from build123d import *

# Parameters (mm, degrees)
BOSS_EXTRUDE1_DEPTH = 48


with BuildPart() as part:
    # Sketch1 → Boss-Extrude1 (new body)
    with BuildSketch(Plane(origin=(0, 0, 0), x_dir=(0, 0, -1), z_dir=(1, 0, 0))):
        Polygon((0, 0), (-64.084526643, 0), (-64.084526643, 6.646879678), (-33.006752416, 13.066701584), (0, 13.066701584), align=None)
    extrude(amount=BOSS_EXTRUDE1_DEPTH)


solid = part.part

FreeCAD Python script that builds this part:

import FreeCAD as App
import Part
import Sketcher
from FreeCAD import Vector
Q = App.Units.Quantity

doc = App.newDocument("Part")
params = doc.addObject("Spreadsheet::Sheet", "Params")
for row, (alias, value) in enumerate([
    ("pad1_length", "48 mm"),
], start=1):
    params.set(f"A{row}", alias)
    params.set(f"B{row}", "=" + value)
    params.setAlias(f"B{row}", alias)

body = doc.addObject("PartDesign::Body", "Body")

sketch1 = body.newObject("Sketcher::SketchObject", "Sketch")
sketch1.AttachmentSupport = (doc.getObject("YZ_Plane"), [""])
sketch1.MapMode = "FlatFace"
sketch1.addGeometry([
    Part.LineSegment(Vector(0, 64.084527, 0), Vector(0, 0, 0)),
    Part.LineSegment(Vector(0, 0, 0), Vector(13.066702, 0, 0)),
    Part.LineSegment(Vector(13.066702, 0, 0), Vector(13.066702, 33.006752, 0)),
    Part.LineSegment(Vector(13.066702, 33.006752, 0), Vector(6.64688, 64.084527, 0)),
    Part.LineSegment(Vector(6.64688, 64.084527, 0), Vector(0, 64.084527, 0)),
], False)
sketch1.addConstraint([
    Sketcher.Constraint("Coincident", 0, 2, 1, 1),
    Sketcher.Constraint("Coincident", 1, 2, 2, 1),
    Sketcher.Constraint("Coincident", 2, 2, 3, 1),
    Sketcher.Constraint("Coincident", 3, 2, 4, 1),
    Sketcher.Constraint("Coincident", 4, 2, 0, 1),
    Sketcher.Constraint("Vertical", 0),
    Sketcher.Constraint("Horizontal", 1),
    Sketcher.Constraint("Vertical", 2),
    Sketcher.Constraint("Horizontal", 4),
    Sketcher.Constraint("Coincident", 0, 2, -1, 1),
    Sketcher.Constraint("DistanceX", 1, 1, 1, 2, Q("13.066702 mm")),
    Sketcher.Constraint("DistanceX", 4, 2, 4, 1, Q("6.64688 mm")),
    Sketcher.Constraint("DistanceY", 0, 2, 0, 1, Q("64.084527 mm")),
    Sketcher.Constraint("DistanceY", 2, 1, 2, 2, Q("33.006752 mm")),
])
pad1 = body.newObject("PartDesign::Pad", "Pad")
pad1.Profile = sketch1
pad1.setExpression("Length", "Params.pad1_length")

doc.recompute()
